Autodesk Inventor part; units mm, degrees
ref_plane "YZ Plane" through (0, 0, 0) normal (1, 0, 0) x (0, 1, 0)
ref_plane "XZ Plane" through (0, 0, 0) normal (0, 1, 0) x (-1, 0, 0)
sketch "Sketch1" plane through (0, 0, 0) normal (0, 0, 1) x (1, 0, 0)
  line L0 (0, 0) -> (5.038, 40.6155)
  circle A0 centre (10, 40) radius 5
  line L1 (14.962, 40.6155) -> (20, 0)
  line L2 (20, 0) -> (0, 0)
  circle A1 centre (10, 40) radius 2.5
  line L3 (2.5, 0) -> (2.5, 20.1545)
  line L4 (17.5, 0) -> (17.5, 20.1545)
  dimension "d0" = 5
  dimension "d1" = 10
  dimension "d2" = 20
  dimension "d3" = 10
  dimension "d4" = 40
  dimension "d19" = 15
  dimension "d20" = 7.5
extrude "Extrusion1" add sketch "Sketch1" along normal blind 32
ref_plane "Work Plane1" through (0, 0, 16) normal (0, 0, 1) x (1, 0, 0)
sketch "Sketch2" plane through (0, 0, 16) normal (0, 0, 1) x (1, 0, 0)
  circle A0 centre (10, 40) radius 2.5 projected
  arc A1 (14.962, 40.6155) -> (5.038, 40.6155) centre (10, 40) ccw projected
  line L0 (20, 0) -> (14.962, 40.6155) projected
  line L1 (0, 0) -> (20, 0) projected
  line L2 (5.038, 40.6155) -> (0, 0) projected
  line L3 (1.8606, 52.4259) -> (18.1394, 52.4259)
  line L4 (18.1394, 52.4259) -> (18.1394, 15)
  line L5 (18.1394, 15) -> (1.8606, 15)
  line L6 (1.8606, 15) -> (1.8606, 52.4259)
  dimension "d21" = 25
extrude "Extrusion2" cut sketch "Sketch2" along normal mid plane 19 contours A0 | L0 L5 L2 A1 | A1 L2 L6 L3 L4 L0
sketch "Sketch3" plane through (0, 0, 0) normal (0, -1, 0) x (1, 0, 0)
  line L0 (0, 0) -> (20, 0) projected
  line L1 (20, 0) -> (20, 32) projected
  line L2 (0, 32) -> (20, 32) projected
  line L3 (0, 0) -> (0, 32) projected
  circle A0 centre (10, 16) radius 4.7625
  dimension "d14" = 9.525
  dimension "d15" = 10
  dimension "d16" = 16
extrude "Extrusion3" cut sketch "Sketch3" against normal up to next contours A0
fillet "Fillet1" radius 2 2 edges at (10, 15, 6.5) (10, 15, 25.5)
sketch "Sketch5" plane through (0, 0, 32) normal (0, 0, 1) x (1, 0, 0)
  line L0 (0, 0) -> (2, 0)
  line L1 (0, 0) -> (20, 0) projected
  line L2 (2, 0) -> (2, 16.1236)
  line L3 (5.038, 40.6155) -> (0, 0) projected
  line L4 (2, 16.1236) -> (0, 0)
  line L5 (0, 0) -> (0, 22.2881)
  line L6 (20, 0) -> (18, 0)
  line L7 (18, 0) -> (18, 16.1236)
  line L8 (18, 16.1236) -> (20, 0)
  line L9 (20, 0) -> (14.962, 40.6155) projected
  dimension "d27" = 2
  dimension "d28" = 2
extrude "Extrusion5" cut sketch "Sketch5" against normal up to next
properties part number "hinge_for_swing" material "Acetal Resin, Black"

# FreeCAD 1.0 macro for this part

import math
import FreeCAD as App
import Part
import Sketcher
from FreeCAD import Vector
Q = App.Units.Quantity


def edges_at(feature, points):
    """Names of the edges that pass closest to the given points."""
    edges = feature.Shape.Edges
    near = lambda p: min(range(len(edges)), key=lambda i: edges[i].distToShape(Part.Vertex(*p))[0])
    return sorted({f"Edge{near(p) + 1}" for p in points})


def add_polygon(sketch, points):
    """Adds a closed chain of lines whose ends are joined by coincident constraints."""
    first, n = sketch.GeometryCount, len(points)
    for a, b in zip(points, points[1:] + points[:1]):
        sketch.addGeometry(Part.LineSegment(App.Vector(*a, 0), App.Vector(*b, 0)), False)
    for i in range(n):
        sketch.addConstraint(Sketcher.Constraint("Coincident", first + i, 2, first + (i + 1) % n, 1))

doc = App.newDocument("Part")
body = doc.addObject("PartDesign::Body", "Body")

# Sketch on XY plane
sketch1 = body.newObject("Sketcher::SketchObject", "Sketch")
sketch1.AttachmentSupport = (doc.getObject("XY_Plane"), [""])
sketch1.MapMode = "FlatFace"
sketch1.addGeometry([
    Part.LineSegment(Vector(0, 0, 0), Vector(20, 0, 0)),  # 0
    Part.LineSegment(Vector(20, 0, 0), Vector(15, 40.6, 0)),  # 1
    Part.ArcOfCircle(Part.Circle(Vector(10, 40, 0), Vector(0, 0, 1), 5), math.radians(7), math.radians(173)),  # 2
    Part.LineSegment(Vector(5, 40.6, 0), Vector(0, 0, 0)),  # 3
    Part.Circle(Vector(10, 40, 0), Vector(0, 0, 1), 2.5),  # 4
], False)
sketch1.addConstraint([
    Sketcher.Constraint("Coincident", 0, 2, 1, 1),
    Sketcher.Constraint("Tangent", 1, 2, 2, 1),
    Sketcher.Constraint("Tangent", 2, 2, 3, 1),
    Sketcher.Constraint("Coincident", 3, 2, 0, 1),
    Sketcher.Constraint("Horizontal", 0),
    Sketcher.Constraint("Coincident", 3, 2, -1, 1),
    Sketcher.Constraint("Coincident", 4, 3, 2, 3),
    Sketcher.Constraint("Horizontal", 1, 2, 2, 2),
    Sketcher.Constraint("Diameter", 4, 5.0),
    Sketcher.Constraint("Radius", 2, 5.0),
    Sketcher.Constraint("DistanceX", 0, 1, 0, 2, 20.0),
    Sketcher.Constraint("DistanceY", -1, 1, 2, 3, 40.0),
])
pad1 = body.newObject("PartDesign::Pad", "Pad")
pad1.Profile = sketch1
pad1.Length = 32

# Sketch on XY plane
sketch2 = body.newObject("Sketcher::SketchObject", "Sketch001")
sketch2.AttachmentSupport = (doc.getObject("XY_Plane"), [""])
sketch2.MapMode = "FlatFace"
sketch2.AttachmentOffset = App.Placement(Vector(0, 0, 16), App.Rotation())
add_polygon(sketch2, [(2, 15), (18, 15), (18, 52), (2, 52)])  # lines 0-3
sketch2.addConstraint([
    Sketcher.Constraint("Horizontal", 0),
    Sketcher.Constraint("Vertical", 1),
    Sketcher.Constraint("Horizontal", 2),
    Sketcher.Constraint("Vertical", 3),
    Sketcher.Constraint("DistanceY", -1, 1, 0, 2, 15.0),
    Sketcher.Constraint("DistanceY", 1, 1, 1, 2, 37.426),
    Sketcher.Constraint("DistanceX", 0, 1, 0, 2, 16.2788),
    Sketcher.Constraint("DistanceX", -1, 1, 0, 2, 18.1394),
])
pocket1 = body.newObject("PartDesign::Pocket", "Pocket")
pocket1.Profile = sketch2
pocket1.Length = 19
pocket1.Midplane = True

# Sketch on XZ plane
sketch3 = body.newObject("Sketcher::SketchObject", "Sketch002")
sketch3.AttachmentSupport = (doc.getObject("XZ_Plane"), [""])
sketch3.MapMode = "FlatFace"
sketch3.addGeometry(Part.Circle(Vector(10, 16, 0), Vector(0, 0, 1), 4.8), False)
sketch3.addConstraint([
    Sketcher.Constraint("Diameter", 0, 9.525),
    Sketcher.Constraint("DistanceX", -1, 1, 0, 3, 10.0),
    Sketcher.Constraint("DistanceY", -1, 1, 0, 3, 16.0),
])
pocket2 = body.newObject("PartDesign::Pocket", "Pocket001")
pocket2.Profile = sketch3
pocket2.Type = "UpToFirst"
doc.recompute()

fillet = body.newObject("PartDesign::Fillet", "Fillet")
fillet.Base = (pocket2, edges_at(pocket2, [(10, 15, 6.5), (10, 15, 25.5)]))
fillet.Radius = 2

# Sketch on XY plane
sketch4 = body.newObject("Sketcher::SketchObject", "Sketch003")
sketch4.AttachmentSupport = (doc.getObject("XY_Plane"), [""])
sketch4.MapMode = "FlatFace"
sketch4.AttachmentOffset = App.Placement(Vector(0, 0, 32), App.Rotation())
add_polygon(sketch4, [(2, 16.1), (0, 0), (2, 0)])  # lines 0-2
add_polygon(sketch4, [(18, 16.1), (18, 0), (20, 0)])  # lines 3-5
sketch4.addConstraint([
    Sketcher.Constraint("Horizontal", 1),
    Sketcher.Constraint("Vertical", 2),
    Sketcher.Constraint("Vertical", 3),
    Sketcher.Constraint("Horizontal", 4),
    Sketcher.Constraint("Coincident", 0, 2, -1, 1),
    Sketcher.Constraint("PointOnObject", 3, 2, -1),
    Sketcher.Constraint("Horizontal", 2, 2, 5, 2),
    Sketcher.Constraint("Equal", 1, 4),
    Sketcher.Constraint("DistanceX", 1, 1, 1, 2, 2.0),
    Sketcher.Constraint("DistanceX", -1, 1, 3, 2, 18.0),
    Sketcher.Constraint("Angle", 0, Q("-97.071 deg")),
])
pocket3 = body.newObject("PartDesign::Pocket", "Pocket002")
pocket3.Profile = sketch4
pocket3.Length = 32

doc.recompute()
